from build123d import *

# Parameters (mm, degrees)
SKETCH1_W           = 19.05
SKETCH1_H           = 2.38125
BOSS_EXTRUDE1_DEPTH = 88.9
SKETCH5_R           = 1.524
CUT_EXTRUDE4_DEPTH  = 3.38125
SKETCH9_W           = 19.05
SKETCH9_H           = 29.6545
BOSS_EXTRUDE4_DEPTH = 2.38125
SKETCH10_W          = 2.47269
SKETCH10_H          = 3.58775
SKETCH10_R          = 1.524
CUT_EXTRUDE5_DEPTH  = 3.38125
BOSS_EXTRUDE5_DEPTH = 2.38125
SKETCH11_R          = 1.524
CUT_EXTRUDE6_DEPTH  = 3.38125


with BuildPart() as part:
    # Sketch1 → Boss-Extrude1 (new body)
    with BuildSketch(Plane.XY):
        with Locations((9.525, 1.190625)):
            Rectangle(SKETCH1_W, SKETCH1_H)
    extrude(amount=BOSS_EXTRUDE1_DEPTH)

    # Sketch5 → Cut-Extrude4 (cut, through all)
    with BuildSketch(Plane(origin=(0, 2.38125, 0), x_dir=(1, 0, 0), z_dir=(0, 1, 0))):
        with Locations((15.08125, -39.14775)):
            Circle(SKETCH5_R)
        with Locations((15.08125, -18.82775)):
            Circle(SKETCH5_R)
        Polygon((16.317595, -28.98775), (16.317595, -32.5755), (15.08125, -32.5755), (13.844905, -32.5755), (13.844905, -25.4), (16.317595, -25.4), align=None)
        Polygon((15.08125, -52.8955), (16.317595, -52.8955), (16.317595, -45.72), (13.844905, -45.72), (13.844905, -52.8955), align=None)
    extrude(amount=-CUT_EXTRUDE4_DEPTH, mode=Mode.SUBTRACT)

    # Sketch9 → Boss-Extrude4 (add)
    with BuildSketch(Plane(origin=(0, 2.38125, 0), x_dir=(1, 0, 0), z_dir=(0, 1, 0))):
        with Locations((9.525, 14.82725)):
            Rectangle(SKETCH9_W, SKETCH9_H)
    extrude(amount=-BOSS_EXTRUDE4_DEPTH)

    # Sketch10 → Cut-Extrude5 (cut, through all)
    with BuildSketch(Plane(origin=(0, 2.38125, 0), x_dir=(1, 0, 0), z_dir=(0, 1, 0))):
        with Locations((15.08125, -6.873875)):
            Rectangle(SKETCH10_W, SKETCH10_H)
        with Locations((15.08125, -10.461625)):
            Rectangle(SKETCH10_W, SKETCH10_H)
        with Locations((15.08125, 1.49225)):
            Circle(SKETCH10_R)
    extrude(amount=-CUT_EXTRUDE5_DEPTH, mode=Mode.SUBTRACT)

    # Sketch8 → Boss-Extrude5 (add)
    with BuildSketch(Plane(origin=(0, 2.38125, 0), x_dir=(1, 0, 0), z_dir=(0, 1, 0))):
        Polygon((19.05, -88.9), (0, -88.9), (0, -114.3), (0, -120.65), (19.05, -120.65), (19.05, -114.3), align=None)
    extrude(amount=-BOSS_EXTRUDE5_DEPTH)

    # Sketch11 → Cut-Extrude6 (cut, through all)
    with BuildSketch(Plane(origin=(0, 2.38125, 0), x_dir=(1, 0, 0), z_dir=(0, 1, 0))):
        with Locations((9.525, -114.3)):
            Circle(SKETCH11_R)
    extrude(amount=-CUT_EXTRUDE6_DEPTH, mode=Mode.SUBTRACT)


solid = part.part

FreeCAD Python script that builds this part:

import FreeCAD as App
import Part
import Sketcher

V = App.Vector
Q = App.Units.Quantity

doc = App.newDocument("Part")
body = doc.addObject("PartDesign::Body", "Body")

# Sketch on XY plane
sketch1 = body.newObject("Sketcher::SketchObject", "Sketch")
sketch1.AttachmentSupport = (doc.getObject("XY_Plane"), [""])
sketch1.MapMode = "FlatFace"
sketch1.addGeometry(Part.LineSegment(V(0, 2.4, 0), V(0, 0, 0)), False)
sketch1.addGeometry(Part.LineSegment(V(0, 0, 0), V(19.1, 0, 0)), False)
sketch1.addGeometry(Part.LineSegment(V(19.1, 0, 0), V(19.1, 2.4, 0)), False)
sketch1.addGeometry(Part.LineSegment(V(19.1, 2.4, 0), V(0, 2.4, 0)), False)
sketch1.addConstraint(Sketcher.Constraint("Coincident", 0, 2, 1, 1))
sketch1.addConstraint(Sketcher.Constraint("Coincident", 1, 2, 2, 1))
sketch1.addConstraint(Sketcher.Constraint("Coincident", 2, 2, 3, 1))
sketch1.addConstraint(Sketcher.Constraint("Coincident", 3, 2, 0, 1))
sketch1.addConstraint(Sketcher.Constraint("Vertical", 0))
sketch1.addConstraint(Sketcher.Constraint("Horizontal", 1))
sketch1.addConstraint(Sketcher.Constraint("Vertical", 2))
sketch1.addConstraint(Sketcher.Constraint("Horizontal", 3))
sketch1.addConstraint(Sketcher.Constraint("Coincident", 0, 2, -1, 1))
sketch1.addConstraint(Sketcher.Constraint("DistanceX", 1, 1, 1, 2, Q("0.75 in")))
sketch1.addConstraint(Sketcher.Constraint("DistanceY", 0, 2, 0, 1, Q("0.09375 in")))
pad1 = body.newObject("PartDesign::Pad", "Pad")
pad1.Profile = sketch1
pad1.Length = Q("3.5 in")

# Sketch on XZ plane
sketch2 = body.newObject("Sketcher::SketchObject", "Sketch001")
sketch2.AttachmentSupport = (doc.getObject("XZ_Plane"), [""])
sketch2.MapMode = "FlatFace"
sketch2.AttachmentOffset = App.Placement(V(0, 0, -0.09375 * 25.4), App.Rotation())
sketch2.addGeometry(Part.Circle(V(15.1, 39.1, 0), V(0, 0, 1), 1.5), False)
sketch2.addGeometry(Part.Circle(V(15.1, 18.8, 0), V(0, 0, 1), 1.5), False)
sketch2.addGeometry(Part.LineSegment(V(16.3, 32.6, 0), V(16.3, 25.4, 0)), False)
sketch2.addGeometry(Part.LineSegment(V(16.3, 25.4, 0), V(13.8, 25.4, 0)), False)
sketch2.addGeometry(Part.LineSegment(V(13.8, 25.4, 0), V(13.8, 32.6, 0)), False)
sketch2.addGeometry(Part.LineSegment(V(13.8, 32.6, 0), V(16.3, 32.6, 0)), False)
sketch2.addGeometry(Part.LineSegment(V(16.3, 52.9, 0), V(16.3, 45.7, 0)), False)
sketch2.addGeometry(Part.LineSegment(V(16.3, 45.7, 0), V(13.8, 45.7, 0)), False)
sketch2.addGeometry(Part.LineSegment(V(13.8, 45.7, 0), V(13.8, 52.9, 0)), False)
sketch2.addGeometry(Part.LineSegment(V(13.8, 52.9, 0), V(16.3, 52.9, 0)), False)
sketch2.addConstraint(Sketcher.Constraint("Coincident", 2, 2, 3, 1))
sketch2.addConstraint(Sketcher.Constraint("Coincident", 3, 2, 4, 1))
sketch2.addConstraint(Sketcher.Constraint("Coincident", 4, 2, 5, 1))
sketch2.addConstraint(Sketcher.Constraint("Coincident", 5, 2, 2, 1))
sketch2.addConstraint(Sketcher.Constraint("Coincident", 6, 2, 7, 1))
sketch2.addConstraint(Sketcher.Constraint("Coincident", 7, 2, 8, 1))
sketch2.addConstraint(Sketcher.Constraint("Coincident", 8, 2, 9, 1))
sketch2.addConstraint(Sketcher.Constraint("Coincident", 9, 2, 6, 1))
sketch2.addConstraint(Sketcher.Constraint("Vertical", 2))
sketch2.addConstraint(Sketcher.Constraint("Horizontal", 3))
sketch2.addConstraint(Sketcher.Constraint("Vertical", 4))
sketch2.addConstraint(Sketcher.Constraint("Horizontal", 5))
sketch2.addConstraint(Sketcher.Constraint("Vertical", 6))
sketch2.addConstraint(Sketcher.Constraint("Horizontal", 7))
sketch2.addConstraint(Sketcher.Constraint("Vertical", 8))
sketch2.addConstraint(Sketcher.Constraint("Horizontal", 9))
sketch2.addConstraint(Sketcher.Constraint("Equal", 0, 1))
sketch2.addConstraint(Sketcher.Constraint("Vertical", 0, 3, 1, 3))
sketch2.addConstraint(Sketcher.Constraint("Vertical", 5, 2, 6, 2))
sketch2.addConstraint(Sketcher.Constraint("Vertical", 4, 2, 7, 2))
sketch2.addConstraint(Sketcher.Constraint("Equal", 4, 6))
sketch2.addConstraint(Sketcher.Constraint("Diameter", 0, Q("0.12 in")))
sketch2.addConstraint(Sketcher.Constraint("DistanceY", -1, 1, 2, 2, Q("1 in")))
sketch2.addConstraint(Sketcher.Constraint("DistanceY", -1, 1, 6, 2, Q("1.8 in")))
sketch2.addConstraint(Sketcher.Constraint("DistanceY", 1, 3, 0, 3, Q("0.8 in")))
sketch2.addConstraint(Sketcher.Constraint("DistanceY", 2, 2, 2, 1, Q("0.2825 in")))
sketch2.addConstraint(Sketcher.Constraint("DistanceX", -1, 1, 0, 3, Q("0.59375 in")))
sketch2.addConstraint(Sketcher.Constraint("DistanceX", 3, 2, 3, 1, 2.47269))
sketch2.addConstraint(Sketcher.Constraint("DistanceY", -1, 1, 0, 3, 39.14775))
sketch2.addConstraint(Sketcher.Constraint("DistanceX", -1, 1, 2, 2, 16.317595))
pocket1 = body.newObject("PartDesign::Pocket", "Pocket")
pocket1.Profile = sketch2
pocket1.Type = "ThroughAll"
pocket1.Reversed = True

# Sketch on XZ plane
sketch3 = body.newObject("Sketcher::SketchObject", "Sketch002")
sketch3.AttachmentSupport = (doc.getObject("XZ_Plane"), [""])
sketch3.MapMode = "FlatFace"
sketch3.AttachmentOffset = App.Placement(V(0, 0, -0.09375 * 25.4), App.Rotation())
sketch3.addGeometry(Part.LineSegment(V(0, -30, 0), V(0, 0, 0)), False)
sketch3.addGeometry(Part.LineSegment(V(0, 0, 0), V(19, 0, 0)), False)
sketch3.addGeometry(Part.LineSegment(V(19, 0, 0), V(19, -30, 0)), False)
sketch3.addGeometry(Part.LineSegment(V(19, -30, 0), V(0, -30, 0)), False)
sketch3.addConstraint(Sketcher.Constraint("Coincident", 0, 2, 1, 1))
sketch3.addConstraint(Sketcher.Constraint("Coincident", 1, 2, 2, 1))
sketch3.addConstraint(Sketcher.Constraint("Coincident", 2, 2, 3, 1))
sketch3.addConstraint(Sketcher.Constraint("Coincident", 3, 2, 0, 1))
sketch3.addConstraint(Sketcher.Constraint("Vertical", 0))
sketch3.addConstraint(Sketcher.Constraint("Horizontal", 1))
sketch3.addConstraint(Sketcher.Constraint("Vertical", 2))
sketch3.addConstraint(Sketcher.Constraint("Horizontal", 3))
sketch3.addConstraint(Sketcher.Constraint("Coincident", 0, 2, -1, 1))
sketch3.addConstraint(Sketcher.Constraint("DistanceX", 1, 1, 1, 2, Q("0.75 in")))
sketch3.addConstraint(Sketcher.Constraint("DistanceY", 0, 1, 0, 2, Q("1.1675 in")))
pad2 = body.newObject("PartDesign::Pad", "Pad001")
pad2.Profile = sketch3
pad2.Length = Q("0.09375 in")

# Sketch on XZ plane
sketch4 = body.newObject("Sketcher::SketchObject", "Sketch003")
sketch4.AttachmentSupport = (doc.getObject("XZ_Plane"), [""])
sketch4.MapMode = "FlatFace"
sketch4.AttachmentOffset = App.Placement(V(0, 0, -0.09375 * 25.4), App.Rotation())
sketch4.addGeometry(Part.LineSegment(V(13.8, 5.1, 0), V(13.8, 12.3, 0)), False)
sketch4.addGeometry(Part.LineSegment(V(13.8, 12.3, 0), V(16.3, 12.3, 0)), False)
sketch4.addGeometry(Part.LineSegment(V(16.3, 12.3, 0), V(16.3, 5.1, 0)), False)
sketch4.addGeometry(Part.LineSegment(V(16.3, 5.1, 0), V(13.8, 5.1, 0)), False)
sketch4.addGeometry(Part.Circle(V(15.1, -1.5, 0), V(0, 0, 1), 1.5), False)
sketch4.addConstraint(Sketcher.Constraint("Coincident", 0, 2, 1, 1))
sketch4.addConstraint(Sketcher.Constraint("Coincident", 1, 2, 2, 1))
sketch4.addConstraint(Sketcher.Constraint("Coincident", 2, 2, 3, 1))
sketch4.addConstraint(Sketcher.Constraint("Coincident", 3, 2, 0, 1))
sketch4.addConstraint(Sketcher.Constraint("Vertical", 0))
sketch4.addConstraint(Sketcher.Constraint("Horizontal", 1))
sketch4.addConstraint(Sketcher.Constraint("Vertical", 2))
sketch4.addConstraint(Sketcher.Constraint("Horizontal", 3))
sketch4.addConstraint(Sketcher.Constraint("Diameter", 4, Q("0.12 in")))
sketch4.addConstraint(Sketcher.Constraint("DistanceY", -1, 1, 2, 2, Q("0.2 in")))
sketch4.addConstraint(Sketcher.Constraint("DistanceY", 0, 1, 0, 2, Q("0.2825 in")))
sketch4.addConstraint(Sketcher.Constraint("DistanceX", -1, 1, 4, 3, Q("0.59375 in")))
sketch4.addConstraint(Sketcher.Constraint("DistanceX", 1, 1, 1, 2, 2.47269))
sketch4.addConstraint(Sketcher.Constraint("DistanceY", 4, 3, -1, 1, 1.49225))
sketch4.addConstraint(Sketcher.Constraint("DistanceX", -1, 1, 0, 2, 13.844905))
pocket2 = body.newObject("PartDesign::Pocket", "Pocket001")
pocket2.Profile = sketch4
pocket2.Type = "ThroughAll"
pocket2.Reversed = True

# Sketch on XZ plane
sketch5 = body.newObject("Sketcher::SketchObject", "Sketch004")
sketch5.AttachmentSupport = (doc.getObject("XZ_Plane"), [""])
sketch5.MapMode = "FlatFace"
sketch5.AttachmentOffset = App.Placement(V(0, 0, -0.09375 * 25.4), App.Rotation())
sketch5.addGeometry(Part.LineSegment(V(19, 89, 0), V(0, 89, 0)), False)
sketch5.addGeometry(Part.LineSegment(V(0, 89, 0), V(0, 121, 0)), False)
sketch5.addGeometry(Part.LineSegment(V(0, 121, 0), V(19, 121, 0)), False)
sketch5.addGeometry(Part.LineSegment(V(19, 121, 0), V(19, 89, 0)), False)
sketch5.addConstraint(Sketcher.Constraint("Coincident", 0, 2, 1, 1))
sketch5.addConstraint(Sketcher.Constraint("Coincident", 1, 2, 2, 1))
sketch5.addConstraint(Sketcher.Constraint("Coincident", 2, 2, 3, 1))
sketch5.addConstraint(Sketcher.Constraint("Coincident", 3, 2, 0, 1))
sketch5.addConstraint(Sketcher.Constraint("Horizontal", 0))
sketch5.addConstraint(Sketcher.Constraint("Vertical", 1))
sketch5.addConstraint(Sketcher.Constraint("Horizontal", 2))
sketch5.addConstraint(Sketcher.Constraint("Vertical", 3))
sketch5.addConstraint(Sketcher.Constraint("PointOnObject", 0, 2, -2))
sketch5.addConstraint(Sketcher.Constraint("DistanceX", 0, 2, 0, 1, Q("0.75 in")))
sketch5.addConstraint(Sketcher.Constraint("DistanceY", 1, 1, 1, 2, Q("1.25 in")))
sketch5.addConstraint(Sketcher.Constraint("DistanceY", -1, 1, 0, 2, Q("3.5 in")))
pad3 = body.newObject("PartDesign::Pad", "Pad002")
pad3.Profile = sketch5
pad3.Length = Q("0.09375 in")

# Sketch on XZ plane
sketch6 = body.newObject("Sketcher::SketchObject", "Sketch005")
sketch6.AttachmentSupport = (doc.getObject("XZ_Plane"), [""])
sketch6.MapMode = "FlatFace"
sketch6.AttachmentOffset = App.Placement(V(0, 0, -0.09375 * 25.4), App.Rotation())
sketch6.addGeometry(Part.Circle(V(9.5, 114.3, 0), V(0, 0, 1), 1.5), False)
sketch6.addConstraint(Sketcher.Constraint("Diameter", 0, Q("0.12 in")))
sketch6.addConstraint(Sketcher.Constraint("DistanceY", -1, 1, 0, 3, Q("4.5 in")))
sketch6.addConstraint(Sketcher.Constraint("DistanceX", -1, 1, 0, 3, Q("0.375 in")))
pocket3 = body.newObject("PartDesign::Pocket", "Pocket002")
pocket3.Profile = sketch6
pocket3.Type = "ThroughAll"
pocket3.Reversed = True

doc.recompute()
